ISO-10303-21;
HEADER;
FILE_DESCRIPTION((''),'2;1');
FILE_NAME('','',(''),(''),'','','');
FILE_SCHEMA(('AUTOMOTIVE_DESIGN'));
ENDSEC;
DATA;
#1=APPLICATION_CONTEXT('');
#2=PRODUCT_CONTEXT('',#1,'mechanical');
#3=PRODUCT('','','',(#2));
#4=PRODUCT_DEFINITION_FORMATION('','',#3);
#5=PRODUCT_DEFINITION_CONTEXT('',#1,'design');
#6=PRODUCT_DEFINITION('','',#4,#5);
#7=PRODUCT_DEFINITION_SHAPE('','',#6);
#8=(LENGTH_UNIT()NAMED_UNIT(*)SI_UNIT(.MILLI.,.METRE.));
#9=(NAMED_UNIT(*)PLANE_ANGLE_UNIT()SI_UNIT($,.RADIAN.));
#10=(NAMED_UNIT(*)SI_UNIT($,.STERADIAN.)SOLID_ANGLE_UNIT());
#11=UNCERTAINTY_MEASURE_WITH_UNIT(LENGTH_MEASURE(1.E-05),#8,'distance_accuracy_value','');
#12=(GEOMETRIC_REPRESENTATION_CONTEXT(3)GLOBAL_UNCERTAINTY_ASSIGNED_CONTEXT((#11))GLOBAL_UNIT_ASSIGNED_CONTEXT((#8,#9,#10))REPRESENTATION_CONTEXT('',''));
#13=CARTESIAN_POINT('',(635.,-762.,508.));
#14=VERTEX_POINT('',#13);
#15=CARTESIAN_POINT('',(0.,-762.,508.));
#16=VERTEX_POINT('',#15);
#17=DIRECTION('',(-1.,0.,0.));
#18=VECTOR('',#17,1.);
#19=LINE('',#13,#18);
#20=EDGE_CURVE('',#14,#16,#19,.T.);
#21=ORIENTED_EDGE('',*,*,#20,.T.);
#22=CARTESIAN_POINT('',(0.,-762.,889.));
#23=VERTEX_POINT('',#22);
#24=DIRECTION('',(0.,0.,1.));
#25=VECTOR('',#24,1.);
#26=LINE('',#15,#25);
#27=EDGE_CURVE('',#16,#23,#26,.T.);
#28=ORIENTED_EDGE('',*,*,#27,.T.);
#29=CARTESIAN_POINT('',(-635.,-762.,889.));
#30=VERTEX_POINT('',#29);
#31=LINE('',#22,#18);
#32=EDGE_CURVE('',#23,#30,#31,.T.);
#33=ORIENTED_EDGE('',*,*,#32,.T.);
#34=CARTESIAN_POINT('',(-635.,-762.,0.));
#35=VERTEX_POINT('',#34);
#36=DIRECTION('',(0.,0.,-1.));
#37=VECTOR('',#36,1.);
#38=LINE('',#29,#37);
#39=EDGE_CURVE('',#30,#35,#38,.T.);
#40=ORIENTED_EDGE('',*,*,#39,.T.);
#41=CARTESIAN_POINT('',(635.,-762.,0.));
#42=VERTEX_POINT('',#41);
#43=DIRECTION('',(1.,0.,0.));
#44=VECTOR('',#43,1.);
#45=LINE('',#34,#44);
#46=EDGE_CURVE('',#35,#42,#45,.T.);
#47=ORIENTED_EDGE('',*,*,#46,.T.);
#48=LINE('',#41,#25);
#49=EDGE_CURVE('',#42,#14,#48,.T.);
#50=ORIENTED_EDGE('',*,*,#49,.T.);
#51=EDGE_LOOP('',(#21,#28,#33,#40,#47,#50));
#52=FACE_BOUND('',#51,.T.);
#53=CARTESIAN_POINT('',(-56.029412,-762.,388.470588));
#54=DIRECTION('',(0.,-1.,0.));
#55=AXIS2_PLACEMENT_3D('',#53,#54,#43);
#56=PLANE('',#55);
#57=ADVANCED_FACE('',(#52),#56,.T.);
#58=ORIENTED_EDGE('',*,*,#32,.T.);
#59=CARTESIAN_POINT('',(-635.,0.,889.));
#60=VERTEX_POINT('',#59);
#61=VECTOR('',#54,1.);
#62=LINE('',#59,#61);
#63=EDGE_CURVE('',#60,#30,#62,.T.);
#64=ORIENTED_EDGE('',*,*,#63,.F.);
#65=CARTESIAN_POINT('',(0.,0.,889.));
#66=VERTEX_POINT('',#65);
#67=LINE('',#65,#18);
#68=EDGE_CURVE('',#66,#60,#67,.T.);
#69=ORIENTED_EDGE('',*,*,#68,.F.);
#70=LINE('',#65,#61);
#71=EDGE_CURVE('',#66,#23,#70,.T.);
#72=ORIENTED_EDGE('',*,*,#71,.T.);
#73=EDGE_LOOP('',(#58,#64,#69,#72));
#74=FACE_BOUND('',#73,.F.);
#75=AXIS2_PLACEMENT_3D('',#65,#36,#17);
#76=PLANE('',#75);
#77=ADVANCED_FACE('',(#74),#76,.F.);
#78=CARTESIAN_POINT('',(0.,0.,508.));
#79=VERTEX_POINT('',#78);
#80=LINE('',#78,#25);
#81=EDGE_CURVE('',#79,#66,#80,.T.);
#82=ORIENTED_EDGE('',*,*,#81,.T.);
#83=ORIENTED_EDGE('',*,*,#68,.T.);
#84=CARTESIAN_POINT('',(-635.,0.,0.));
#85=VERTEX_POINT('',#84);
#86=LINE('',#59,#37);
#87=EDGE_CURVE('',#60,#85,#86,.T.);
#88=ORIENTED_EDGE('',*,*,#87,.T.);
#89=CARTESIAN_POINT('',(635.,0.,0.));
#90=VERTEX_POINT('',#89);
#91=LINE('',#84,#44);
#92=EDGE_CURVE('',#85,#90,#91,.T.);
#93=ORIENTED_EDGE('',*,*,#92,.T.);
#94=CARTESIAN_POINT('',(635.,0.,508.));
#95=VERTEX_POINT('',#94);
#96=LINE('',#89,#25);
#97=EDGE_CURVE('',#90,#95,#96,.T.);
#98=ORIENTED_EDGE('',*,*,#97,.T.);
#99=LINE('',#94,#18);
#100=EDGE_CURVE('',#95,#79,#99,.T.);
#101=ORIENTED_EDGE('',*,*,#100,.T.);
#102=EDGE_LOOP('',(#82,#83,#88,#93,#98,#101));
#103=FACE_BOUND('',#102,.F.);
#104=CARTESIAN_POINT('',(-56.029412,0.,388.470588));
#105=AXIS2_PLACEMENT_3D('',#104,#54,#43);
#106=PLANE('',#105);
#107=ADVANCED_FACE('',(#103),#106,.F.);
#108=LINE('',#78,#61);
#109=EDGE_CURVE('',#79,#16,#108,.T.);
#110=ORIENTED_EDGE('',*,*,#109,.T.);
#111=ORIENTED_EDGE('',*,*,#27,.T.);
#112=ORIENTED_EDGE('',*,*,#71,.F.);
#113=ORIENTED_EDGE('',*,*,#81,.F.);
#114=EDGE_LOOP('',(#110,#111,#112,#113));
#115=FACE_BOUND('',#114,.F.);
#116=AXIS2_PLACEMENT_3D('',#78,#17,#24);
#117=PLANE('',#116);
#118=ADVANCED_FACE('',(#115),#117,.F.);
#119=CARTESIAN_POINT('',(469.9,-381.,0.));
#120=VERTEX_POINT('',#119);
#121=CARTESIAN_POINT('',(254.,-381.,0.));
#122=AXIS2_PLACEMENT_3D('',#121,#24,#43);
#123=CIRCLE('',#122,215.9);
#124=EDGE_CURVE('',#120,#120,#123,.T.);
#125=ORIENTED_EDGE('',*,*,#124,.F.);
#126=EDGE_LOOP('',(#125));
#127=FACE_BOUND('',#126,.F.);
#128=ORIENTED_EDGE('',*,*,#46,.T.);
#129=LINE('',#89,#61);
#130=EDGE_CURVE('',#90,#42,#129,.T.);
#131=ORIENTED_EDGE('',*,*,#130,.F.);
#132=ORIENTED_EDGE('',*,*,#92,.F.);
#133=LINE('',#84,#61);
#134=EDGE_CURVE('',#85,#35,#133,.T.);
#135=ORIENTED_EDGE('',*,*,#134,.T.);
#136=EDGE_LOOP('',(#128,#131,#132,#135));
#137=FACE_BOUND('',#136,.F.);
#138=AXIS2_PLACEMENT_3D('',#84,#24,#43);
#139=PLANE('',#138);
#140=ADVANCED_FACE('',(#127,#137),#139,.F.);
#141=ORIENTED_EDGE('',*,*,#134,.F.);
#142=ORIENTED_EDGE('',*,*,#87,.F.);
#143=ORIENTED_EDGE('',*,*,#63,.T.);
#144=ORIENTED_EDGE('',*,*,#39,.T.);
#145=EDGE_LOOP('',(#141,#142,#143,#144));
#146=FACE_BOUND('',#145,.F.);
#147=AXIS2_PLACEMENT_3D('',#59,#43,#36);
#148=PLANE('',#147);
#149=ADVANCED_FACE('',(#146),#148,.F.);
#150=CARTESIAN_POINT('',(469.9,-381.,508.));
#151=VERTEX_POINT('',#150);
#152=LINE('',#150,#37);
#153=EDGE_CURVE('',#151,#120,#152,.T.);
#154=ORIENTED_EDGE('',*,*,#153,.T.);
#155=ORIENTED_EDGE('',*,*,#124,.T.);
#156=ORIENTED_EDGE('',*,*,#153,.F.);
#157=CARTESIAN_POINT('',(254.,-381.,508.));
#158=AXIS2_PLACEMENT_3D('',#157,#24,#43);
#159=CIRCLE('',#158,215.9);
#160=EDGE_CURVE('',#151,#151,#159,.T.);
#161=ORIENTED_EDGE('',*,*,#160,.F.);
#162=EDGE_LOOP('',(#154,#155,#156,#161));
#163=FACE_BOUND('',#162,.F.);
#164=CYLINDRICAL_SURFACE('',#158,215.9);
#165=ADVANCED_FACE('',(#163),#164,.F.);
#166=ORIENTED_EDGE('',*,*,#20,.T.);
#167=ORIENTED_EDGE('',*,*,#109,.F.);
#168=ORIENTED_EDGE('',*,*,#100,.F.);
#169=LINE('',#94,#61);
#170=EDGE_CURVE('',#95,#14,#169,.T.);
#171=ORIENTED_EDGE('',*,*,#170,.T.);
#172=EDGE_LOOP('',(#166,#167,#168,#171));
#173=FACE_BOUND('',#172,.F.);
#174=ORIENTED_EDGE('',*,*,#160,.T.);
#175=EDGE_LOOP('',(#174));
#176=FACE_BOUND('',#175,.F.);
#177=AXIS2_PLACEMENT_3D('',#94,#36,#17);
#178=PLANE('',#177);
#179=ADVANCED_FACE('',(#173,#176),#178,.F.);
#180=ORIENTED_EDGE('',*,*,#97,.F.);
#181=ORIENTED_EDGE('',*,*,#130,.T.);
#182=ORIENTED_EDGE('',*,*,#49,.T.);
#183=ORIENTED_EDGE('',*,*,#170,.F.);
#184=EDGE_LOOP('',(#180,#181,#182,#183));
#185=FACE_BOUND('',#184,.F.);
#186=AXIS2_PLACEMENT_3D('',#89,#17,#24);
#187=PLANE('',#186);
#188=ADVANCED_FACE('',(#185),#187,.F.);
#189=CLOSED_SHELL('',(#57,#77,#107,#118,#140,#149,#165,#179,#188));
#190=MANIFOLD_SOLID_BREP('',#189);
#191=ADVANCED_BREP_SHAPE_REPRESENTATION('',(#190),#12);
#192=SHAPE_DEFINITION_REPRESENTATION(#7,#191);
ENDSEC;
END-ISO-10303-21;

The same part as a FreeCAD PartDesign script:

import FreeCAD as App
import Part
import Sketcher
from FreeCAD import Vector
Q = App.Units.Quantity

doc = App.newDocument("Part")
body = doc.addObject("PartDesign::Body", "Body")

sketch1 = body.newObject("Sketcher::SketchObject", "Sketch")
sketch1.AttachmentSupport = (doc.getObject("XZ_Plane"), [""])
sketch1.MapMode = "FlatFace"
sketch1.addGeometry([
    Part.LineSegment(Vector(-635, 889, 0), Vector(-635, 0, 0)),
    Part.LineSegment(Vector(-635, 0, 0), Vector(635, 0, 0)),
    Part.LineSegment(Vector(635, 0, 0), Vector(635, 508, 0)),
    Part.LineSegment(Vector(635, 508, 0), Vector(0, 508, 0)),
    Part.LineSegment(Vector(0, 508, 0), Vector(0, 889, 0)),
    Part.LineSegment(Vector(0, 889, 0), Vector(-635, 889, 0)),
], False)
sketch1.addConstraint([
    Sketcher.Constraint("Coincident", 0, 2, 1, 1),
    Sketcher.Constraint("Coincident", 1, 2, 2, 1),
    Sketcher.Constraint("Coincident", 2, 2, 3, 1),
    Sketcher.Constraint("Coincident", 3, 2, 4, 1),
    Sketcher.Constraint("Coincident", 4, 2, 5, 1),
    Sketcher.Constraint("Coincident", 5, 2, 0, 1),
    Sketcher.Constraint("Vertical", 0),
    Sketcher.Constraint("Horizontal", 1),
    Sketcher.Constraint("Vertical", 2),
    Sketcher.Constraint("Horizontal", 3),
    Sketcher.Constraint("Vertical", 4),
    Sketcher.Constraint("Horizontal", 5),
    Sketcher.Constraint("Symmetric", 0, 2, 1, 2, -1, 1),
    Sketcher.Constraint("PointOnObject", 3, 2, -2),
    Sketcher.Constraint("DistanceX", 1, 1, 1, 2, Q("50 in")),
    Sketcher.Constraint("DistanceY", 0, 2, 0, 1, Q("35 in")),
    Sketcher.Constraint("DistanceY", 2, 1, 2, 2, Q("20 in")),
])
pad1 = body.newObject("PartDesign::Pad", "Pad")
pad1.Profile = sketch1
pad1.Length = Q("30 in")

sketch2 = body.newObject("Sketcher::SketchObject", "Sketch001")
sketch2.AttachmentSupport = (doc.getObject("XY_Plane"), [""])
sketch2.MapMode = "FlatFace"
sketch2.AttachmentOffset = App.Placement(Vector(0, 0, 20 * 25.4), App.Rotation())
sketch2.addGeometry(Part.Circle(Vector(254, -381, 0), Vector(0, 0, 1), 216), False)
sketch2.addConstraint([
    Sketcher.Constraint("Diameter", 0, Q("17 in")),
    Sketcher.Constraint("DistanceX", -1, 1, 0, 3, Q("10 in")),
    Sketcher.Constraint("DistanceY", 0, 3, -1, 1, Q("15 in")),
])
pocket1 = body.newObject("PartDesign::Pocket", "Pocket")
pocket1.Profile = sketch2
pocket1.Type = "ThroughAll"

doc.recompute()
